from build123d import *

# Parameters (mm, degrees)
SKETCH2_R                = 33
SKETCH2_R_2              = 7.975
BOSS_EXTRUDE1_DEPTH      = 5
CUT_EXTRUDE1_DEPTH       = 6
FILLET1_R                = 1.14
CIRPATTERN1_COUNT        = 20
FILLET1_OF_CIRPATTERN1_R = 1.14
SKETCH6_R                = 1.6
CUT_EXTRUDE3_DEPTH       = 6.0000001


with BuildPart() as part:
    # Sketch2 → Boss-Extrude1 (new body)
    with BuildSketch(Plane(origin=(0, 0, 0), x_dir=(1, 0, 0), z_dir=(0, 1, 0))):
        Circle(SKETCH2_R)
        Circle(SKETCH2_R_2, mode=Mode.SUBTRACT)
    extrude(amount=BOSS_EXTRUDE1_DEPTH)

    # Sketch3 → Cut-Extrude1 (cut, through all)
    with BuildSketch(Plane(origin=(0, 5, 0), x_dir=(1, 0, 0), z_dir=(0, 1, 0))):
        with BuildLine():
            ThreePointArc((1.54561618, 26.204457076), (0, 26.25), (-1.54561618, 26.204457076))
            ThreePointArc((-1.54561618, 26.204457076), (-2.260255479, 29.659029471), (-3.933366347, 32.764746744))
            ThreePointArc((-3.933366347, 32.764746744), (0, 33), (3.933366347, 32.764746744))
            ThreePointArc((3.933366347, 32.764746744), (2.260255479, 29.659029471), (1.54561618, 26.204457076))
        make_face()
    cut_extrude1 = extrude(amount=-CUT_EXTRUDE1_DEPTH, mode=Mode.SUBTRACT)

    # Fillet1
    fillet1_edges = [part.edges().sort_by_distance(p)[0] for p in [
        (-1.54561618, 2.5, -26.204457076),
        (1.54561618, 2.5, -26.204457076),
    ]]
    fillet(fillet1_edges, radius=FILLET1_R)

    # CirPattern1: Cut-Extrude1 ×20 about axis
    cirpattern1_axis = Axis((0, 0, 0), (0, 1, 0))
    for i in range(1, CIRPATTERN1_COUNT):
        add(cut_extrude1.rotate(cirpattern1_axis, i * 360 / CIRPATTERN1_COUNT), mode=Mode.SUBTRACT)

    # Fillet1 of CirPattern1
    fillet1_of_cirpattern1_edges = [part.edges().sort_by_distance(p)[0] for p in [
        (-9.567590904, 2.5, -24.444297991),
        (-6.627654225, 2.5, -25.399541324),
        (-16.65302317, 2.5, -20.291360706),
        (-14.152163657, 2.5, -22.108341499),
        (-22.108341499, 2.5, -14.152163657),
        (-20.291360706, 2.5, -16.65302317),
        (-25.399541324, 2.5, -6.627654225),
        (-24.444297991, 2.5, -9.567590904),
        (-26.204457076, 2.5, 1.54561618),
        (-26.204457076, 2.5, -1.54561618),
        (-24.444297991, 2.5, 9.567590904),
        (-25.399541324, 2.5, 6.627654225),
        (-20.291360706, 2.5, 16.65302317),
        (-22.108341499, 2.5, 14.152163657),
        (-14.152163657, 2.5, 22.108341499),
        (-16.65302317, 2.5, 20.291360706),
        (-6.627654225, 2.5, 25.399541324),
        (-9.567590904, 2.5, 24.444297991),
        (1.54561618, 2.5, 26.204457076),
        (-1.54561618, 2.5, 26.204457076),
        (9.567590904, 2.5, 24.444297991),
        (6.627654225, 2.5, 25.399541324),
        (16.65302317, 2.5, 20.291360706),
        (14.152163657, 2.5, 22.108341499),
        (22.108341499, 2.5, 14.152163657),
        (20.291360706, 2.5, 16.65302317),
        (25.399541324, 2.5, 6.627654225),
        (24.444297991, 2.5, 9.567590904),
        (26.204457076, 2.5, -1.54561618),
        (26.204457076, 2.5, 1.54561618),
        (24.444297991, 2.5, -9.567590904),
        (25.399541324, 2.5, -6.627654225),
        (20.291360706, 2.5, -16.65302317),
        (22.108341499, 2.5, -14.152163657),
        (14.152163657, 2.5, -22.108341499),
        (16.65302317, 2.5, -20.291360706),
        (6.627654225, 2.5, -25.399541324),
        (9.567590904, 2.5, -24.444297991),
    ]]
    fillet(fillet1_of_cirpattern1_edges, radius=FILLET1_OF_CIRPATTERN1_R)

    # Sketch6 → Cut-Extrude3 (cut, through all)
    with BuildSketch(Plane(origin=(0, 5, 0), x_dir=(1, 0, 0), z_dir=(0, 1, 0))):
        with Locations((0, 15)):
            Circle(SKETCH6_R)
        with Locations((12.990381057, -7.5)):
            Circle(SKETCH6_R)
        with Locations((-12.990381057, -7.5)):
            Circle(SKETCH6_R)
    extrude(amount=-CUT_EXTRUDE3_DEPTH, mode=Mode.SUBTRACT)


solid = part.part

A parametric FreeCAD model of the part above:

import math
import FreeCAD as App
import Part
import Sketcher
from FreeCAD import Vector


def edges_at(feature, points):
    """Names of the edges that pass closest to the given points."""
    edges = feature.Shape.Edges
    near = lambda p: min(range(len(edges)), key=lambda i: edges[i].distToShape(Part.Vertex(*p))[0])
    return sorted({f"Edge{near(p) + 1}" for p in points})

doc = App.newDocument("Part")
params = doc.addObject("Spreadsheet::Sheet", "Params")
for row, (alias, value) in enumerate([
    ("sketch1_diameter", "66 mm"),
    ("sketch1_diameter2", "15.95 mm"),
    ("pad1_length", "5 mm"),
    ("sketch2_radius", "33 mm"),
    ("sketch2_radius2", "26.25 mm"),
    ("fillet_radius", "1.14 mm"),
    ("fillet2_radius", "1.14 mm"),
    ("sketch3_diameter", "3.2 mm"),
], start=1):
    params.set(f"A{row}", alias)
    params.set(f"B{row}", "=" + value)
    params.setAlias(f"B{row}", alias)

body = doc.addObject("PartDesign::Body", "Body")

# Sketch on XZ plane
sketch1 = body.newObject("Sketcher::SketchObject", "Sketch")
sketch1.AttachmentSupport = (doc.getObject("XZ_Plane"), [""])
sketch1.MapMode = "FlatFace"
sketch1.addGeometry([
    Part.Circle(Vector(0, 0, 0), Vector(0, 0, 1), 33),
    Part.Circle(Vector(0, 0, 0), Vector(0, 0, 1), 7.975),
], False)
sketch1.addConstraint([
    Sketcher.Constraint("Coincident", 0, 3, -1, 1),
    Sketcher.Constraint("Coincident", 1, 3, -1, 1),
    Sketcher.Constraint("Diameter", 0, 66.0),
    Sketcher.Constraint("Diameter", 1, 15.95),
])
sketch1.setExpression("Constraints[2]", "Params.sketch1_diameter")
sketch1.setExpression("Constraints[3]", "Params.sketch1_diameter2")
pad1 = body.newObject("PartDesign::Pad", "Pad")
pad1.Profile = sketch1
pad1.setExpression("Length", "Params.pad1_length")
pad1.Reversed = True

# Sketch on XZ plane
sketch2 = body.newObject("Sketcher::SketchObject", "Sketch001")
sketch2.AttachmentSupport = (doc.getObject("XZ_Plane"), [""])
sketch2.MapMode = "FlatFace"
sketch2.AttachmentOffset = App.Placement(Vector(0, 0, -5), App.Rotation())
sketch2.addGeometry([
    Part.ArcOfCircle(Part.Circle(Vector(0, 0, 0), Vector(0, 0, 1), 26.25), math.radians(-93.375563), math.radians(-86.624437)),
    Part.ArcOfCircle(Part.Circle(Vector(13.725402, -25.486057, 0), Vector(0, 0, 1), 12.200954), math.radians(-176.624437), math.radians(-143.375563)),
    Part.ArcOfCircle(Part.Circle(Vector(0, 0, 0), Vector(0, 0, 1), 33), math.radians(-96.845526), math.radians(-83.154474)),
    Part.ArcOfCircle(Part.Circle(Vector(-13.725402, -25.486057, 0), Vector(0, 0, 1), 12.200954), math.radians(-36.624437), math.radians(-3.375563)),
], False)
sketch2.addConstraint([
    Sketcher.Constraint("Coincident", 0, 2, 1, 1),
    Sketcher.Constraint("Coincident", 1, 2, 2, 2),
    Sketcher.Constraint("Coincident", 2, 1, 3, 1),
    Sketcher.Constraint("Coincident", 3, 2, 0, 1),
    Sketcher.Constraint("Coincident", 0, 3, -1, 1),
    Sketcher.Constraint("Coincident", 2, 3, -1, 1),
    Sketcher.Constraint("Equal", 1, 3),
    Sketcher.Constraint("Symmetric", 1, 3, 3, 3, -2),
    Sketcher.Constraint("Radius", 2, 33.0),
    Sketcher.Constraint("Radius", 0, 26.25),
    Sketcher.Constraint("Radius", 1, 12.200954),
    Sketcher.Constraint("DistanceY", 0, 2, 1, 3, 0.7184),
    Sketcher.Constraint("DistanceX", 3, 3, 0, 2, 15.271018),
])
sketch2.setExpression("Constraints[8]", "Params.sketch2_radius")
sketch2.setExpression("Constraints[9]", "Params.sketch2_radius2")
pocket1 = body.newObject("PartDesign::Pocket", "Pocket")
pocket1.Profile = sketch2
pocket1.Type = "ThroughAll"
pocket1.Reversed = True
doc.recompute()

fillet = body.newObject("PartDesign::Fillet", "Fillet")
fillet.Base = (pocket1, edges_at(pocket1, [(-1.546, 2.5, -26.204), (1.546, 2.5, -26.204)]))
fillet.setExpression("Radius", "Params.fillet_radius")
doc.recompute()

polarpattern = body.newObject("PartDesign::PolarPattern", "PolarPattern")
polarpattern.Originals = [pocket1]
polarpattern.Axis = (doc.getObject("Y_Axis"), [""])
polarpattern.Angle = 360
polarpattern.Occurrences = 20
body.Tip = polarpattern
doc.recompute()

fillet2 = body.newObject("PartDesign::Fillet", "Fillet001")
fillet2.Base = (polarpattern, edges_at(polarpattern, [
    (-9.568, 2.5, -24.444),
    (-6.628, 2.5, -25.4),
    (-16.653, 2.5, -20.291),
    (-14.152, 2.5, -22.108),
    (-22.108, 2.5, -14.152),
    (-20.291, 2.5, -16.653),
    (-25.4, 2.5, -6.628),
    (-24.444, 2.5, -9.568),
    (-26.204, 2.5, 1.546),
    (-26.204, 2.5, -1.546),
    (-24.444, 2.5, 9.568),
    (-25.4, 2.5, 6.628),
    (-20.291, 2.5, 16.653),
    (-22.108, 2.5, 14.152),
    (-14.152, 2.5, 22.108),
    (-16.653, 2.5, 20.291),
    (-6.628, 2.5, 25.4),
    (-9.568, 2.5, 24.444),
    (1.546, 2.5, 26.204),
    (-1.546, 2.5, 26.204),
    (9.568, 2.5, 24.444),
    (6.628, 2.5, 25.4),
    (16.653, 2.5, 20.291),
    (14.152, 2.5, 22.108),
    (22.108, 2.5, 14.152),
    (20.291, 2.5, 16.653),
    (25.4, 2.5, 6.628),
    (24.444, 2.5, 9.568),
    (26.204, 2.5, -1.546),
    (26.204, 2.5, 1.546),
    (24.444, 2.5, -9.568),
    (25.4, 2.5, -6.628),
    (20.291, 2.5, -16.653),
    (22.108, 2.5, -14.152),
    (14.152, 2.5, -22.108),
    (16.653, 2.5, -20.291),
    (6.628, 2.5, -25.4),
    (9.568, 2.5, -24.444),
]))
fillet2.setExpression("Radius", "Params.fillet2_radius")

# Sketch on XZ plane
sketch3 = body.newObject("Sketcher::SketchObject", "Sketch002")
sketch3.AttachmentSupport = (doc.getObject("XZ_Plane"), [""])
sketch3.MapMode = "FlatFace"
sketch3.AttachmentOffset = App.Placement(Vector(0, 0, -5), App.Rotation())
sketch3.addGeometry([
    Part.Circle(Vector(0, -15, 0), Vector(0, 0, 1), 1.6),
    Part.Circle(Vector(12.990381, 7.5, 0), Vector(0, 0, 1), 1.6),
    Part.Circle(Vector(-12.990381, 7.5, 0), Vector(0, 0, 1), 1.6),
], False)
sketch3.addConstraint([
    Sketcher.Constraint("Equal", 0, 1),
    Sketcher.Constraint("Equal", 1, 2),
    Sketcher.Constraint("Symmetric", 1, 3, 2, 3, -2),
    Sketcher.Constraint("PointOnObject", 0, 3, -2),
    Sketcher.Constraint("Diameter", 0, 3.2),
    Sketcher.Constraint("DistanceY", 0, 3, -1, 1, 15.0),
    Sketcher.Constraint("DistanceY", -1, 1, 1, 3, 7.5),
    Sketcher.Constraint("DistanceX", -1, 1, 1, 3, 12.990381),
])
sketch3.setExpression("Constraints[4]", "Params.sketch3_diameter")
pocket2 = body.newObject("PartDesign::Pocket", "Pocket001")
pocket2.Profile = sketch3
pocket2.Type = "ThroughAll"
pocket2.Reversed = True

doc.recompute()
